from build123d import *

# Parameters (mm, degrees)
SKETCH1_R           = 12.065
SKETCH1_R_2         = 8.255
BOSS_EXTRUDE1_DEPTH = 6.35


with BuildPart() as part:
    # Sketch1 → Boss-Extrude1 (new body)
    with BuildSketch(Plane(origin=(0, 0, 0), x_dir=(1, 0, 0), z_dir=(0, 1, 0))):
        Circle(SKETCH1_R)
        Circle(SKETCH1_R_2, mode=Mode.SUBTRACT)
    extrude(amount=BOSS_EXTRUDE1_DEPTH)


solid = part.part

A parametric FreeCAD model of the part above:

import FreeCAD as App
import Part
import Sketcher
from FreeCAD import Vector
Q = App.Units.Quantity

doc = App.newDocument("Part")
params = doc.addObject("Spreadsheet::Sheet", "Params")
for row, (alias, value) in enumerate([
    ("sketch1_diameter", "0.95 in"),
    ("sketch1_diameter2", "0.65 in"),
    ("pad1_length", "0.25 in"),
], start=1):
    params.set(f"A{row}", alias)
    params.set(f"B{row}", "=" + value)
    params.setAlias(f"B{row}", alias)

body = doc.addObject("PartDesign::Body", "Body")

# Sketch on XZ plane
sketch1 = body.newObject("Sketcher::SketchObject", "Sketch")
sketch1.AttachmentSupport = (doc.getObject("XZ_Plane"), [""])
sketch1.MapMode = "FlatFace"
sketch1.addGeometry(Part.Circle(Vector(0, 0, 0), Vector(0, 0, 1), 12), False)
sketch1.addGeometry(Part.Circle(Vector(0, 0, 0), Vector(0, 0, 1), 8), False)
sketch1.addConstraint(Sketcher.Constraint("Coincident", 0, 3, -1, 1))
sketch1.addConstraint(Sketcher.Constraint("Coincident", 1, 3, -1, 1))
sketch1.addConstraint(Sketcher.Constraint("Diameter", 0, Q("0.95 in")))
sketch1.addConstraint(Sketcher.Constraint("Diameter", 1, Q("0.65 in")))
sketch1.setExpression("Constraints[2]", "Params.sketch1_diameter")
sketch1.setExpression("Constraints[3]", "Params.sketch1_diameter2")
pad1 = body.newObject("PartDesign::Pad", "Pad")
pad1.Profile = sketch1
pad1.setExpression("Length", "Params.pad1_length")
pad1.Reversed = True

doc.recompute()
